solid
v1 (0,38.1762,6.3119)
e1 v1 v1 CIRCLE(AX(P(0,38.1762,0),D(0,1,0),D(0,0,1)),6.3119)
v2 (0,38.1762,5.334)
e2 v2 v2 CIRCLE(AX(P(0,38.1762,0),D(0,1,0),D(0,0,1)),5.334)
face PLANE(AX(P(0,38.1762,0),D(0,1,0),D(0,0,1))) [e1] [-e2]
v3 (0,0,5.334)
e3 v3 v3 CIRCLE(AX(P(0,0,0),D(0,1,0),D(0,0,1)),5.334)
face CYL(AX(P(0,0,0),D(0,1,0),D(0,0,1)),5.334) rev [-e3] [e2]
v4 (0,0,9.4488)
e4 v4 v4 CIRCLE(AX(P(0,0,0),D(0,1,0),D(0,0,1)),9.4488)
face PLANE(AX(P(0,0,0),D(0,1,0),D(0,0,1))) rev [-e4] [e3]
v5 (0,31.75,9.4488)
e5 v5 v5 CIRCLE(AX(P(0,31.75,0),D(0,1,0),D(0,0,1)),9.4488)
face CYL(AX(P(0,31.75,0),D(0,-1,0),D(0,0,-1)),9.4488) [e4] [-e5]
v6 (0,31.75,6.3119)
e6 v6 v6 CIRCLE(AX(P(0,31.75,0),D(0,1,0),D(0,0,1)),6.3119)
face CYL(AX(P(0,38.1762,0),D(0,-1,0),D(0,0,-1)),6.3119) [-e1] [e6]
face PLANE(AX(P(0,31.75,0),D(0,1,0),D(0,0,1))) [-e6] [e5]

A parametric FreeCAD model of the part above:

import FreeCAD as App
import Part
import Sketcher

V = App.Vector
Q = App.Units.Quantity

doc = App.newDocument("Part")
body = doc.addObject("PartDesign::Body", "Body")

# Sketch on XZ plane
sketch1 = body.newObject("Sketcher::SketchObject", "Sketch")
sketch1.AttachmentSupport = (doc.getObject("XZ_Plane"), [""])
sketch1.MapMode = "FlatFace"
sketch1.addGeometry(Part.Circle(V(0, 0, 0), V(0, 0, 1), 9), False)
sketch1.addConstraint([
    Sketcher.Constraint("Coincident", 0, 3, -1, 1),
    Sketcher.Constraint("Diameter", 0, Q("0.744 in")),
])
pad1 = body.newObject("PartDesign::Pad", "Pad")
pad1.Profile = sketch1
pad1.Length = Q("1.25 in")
pad1.Reversed = True

# Sketch on XZ plane
sketch2 = body.newObject("Sketcher::SketchObject", "Sketch001")
sketch2.AttachmentSupport = (doc.getObject("XZ_Plane"), [""])
sketch2.MapMode = "FlatFace"
sketch2.AttachmentOffset = App.Placement(V(0, 0, -1.25 * 25.4), App.Rotation())
sketch2.addGeometry(Part.Circle(V(0, 0, 0), V(0, 0, 1), 6), False)
sketch2.addConstraint([
    Sketcher.Constraint("Coincident", 0, 3, -1, 1),
    Sketcher.Constraint("Diameter", 0, Q("0.497 in")),
])
pad2 = body.newObject("PartDesign::Pad", "Pad001")
pad2.Profile = sketch2
pad2.Length = Q("0.253 in")
pad2.Reversed = True

# Sketch on XZ plane
sketch3 = body.newObject("Sketcher::SketchObject", "Sketch002")
sketch3.AttachmentSupport = (doc.getObject("XZ_Plane"), [""])
sketch3.MapMode = "FlatFace"
sketch3.AttachmentOffset = App.Placement(V(0, 0, -1.503 * 25.4), App.Rotation())
sketch3.addGeometry(Part.Circle(V(0, 0, 0), V(0, 0, 1), 5), False)
sketch3.addConstraint([
    Sketcher.Constraint("Coincident", 0, 3, -1, 1),
    Sketcher.Constraint("Diameter", 0, Q("0.42 in")),
])
pocket1 = body.newObject("PartDesign::Pocket", "Pocket")
pocket1.Profile = sketch3
pocket1.Type = "ThroughAll"
pocket1.Reversed = True

doc.recompute()
